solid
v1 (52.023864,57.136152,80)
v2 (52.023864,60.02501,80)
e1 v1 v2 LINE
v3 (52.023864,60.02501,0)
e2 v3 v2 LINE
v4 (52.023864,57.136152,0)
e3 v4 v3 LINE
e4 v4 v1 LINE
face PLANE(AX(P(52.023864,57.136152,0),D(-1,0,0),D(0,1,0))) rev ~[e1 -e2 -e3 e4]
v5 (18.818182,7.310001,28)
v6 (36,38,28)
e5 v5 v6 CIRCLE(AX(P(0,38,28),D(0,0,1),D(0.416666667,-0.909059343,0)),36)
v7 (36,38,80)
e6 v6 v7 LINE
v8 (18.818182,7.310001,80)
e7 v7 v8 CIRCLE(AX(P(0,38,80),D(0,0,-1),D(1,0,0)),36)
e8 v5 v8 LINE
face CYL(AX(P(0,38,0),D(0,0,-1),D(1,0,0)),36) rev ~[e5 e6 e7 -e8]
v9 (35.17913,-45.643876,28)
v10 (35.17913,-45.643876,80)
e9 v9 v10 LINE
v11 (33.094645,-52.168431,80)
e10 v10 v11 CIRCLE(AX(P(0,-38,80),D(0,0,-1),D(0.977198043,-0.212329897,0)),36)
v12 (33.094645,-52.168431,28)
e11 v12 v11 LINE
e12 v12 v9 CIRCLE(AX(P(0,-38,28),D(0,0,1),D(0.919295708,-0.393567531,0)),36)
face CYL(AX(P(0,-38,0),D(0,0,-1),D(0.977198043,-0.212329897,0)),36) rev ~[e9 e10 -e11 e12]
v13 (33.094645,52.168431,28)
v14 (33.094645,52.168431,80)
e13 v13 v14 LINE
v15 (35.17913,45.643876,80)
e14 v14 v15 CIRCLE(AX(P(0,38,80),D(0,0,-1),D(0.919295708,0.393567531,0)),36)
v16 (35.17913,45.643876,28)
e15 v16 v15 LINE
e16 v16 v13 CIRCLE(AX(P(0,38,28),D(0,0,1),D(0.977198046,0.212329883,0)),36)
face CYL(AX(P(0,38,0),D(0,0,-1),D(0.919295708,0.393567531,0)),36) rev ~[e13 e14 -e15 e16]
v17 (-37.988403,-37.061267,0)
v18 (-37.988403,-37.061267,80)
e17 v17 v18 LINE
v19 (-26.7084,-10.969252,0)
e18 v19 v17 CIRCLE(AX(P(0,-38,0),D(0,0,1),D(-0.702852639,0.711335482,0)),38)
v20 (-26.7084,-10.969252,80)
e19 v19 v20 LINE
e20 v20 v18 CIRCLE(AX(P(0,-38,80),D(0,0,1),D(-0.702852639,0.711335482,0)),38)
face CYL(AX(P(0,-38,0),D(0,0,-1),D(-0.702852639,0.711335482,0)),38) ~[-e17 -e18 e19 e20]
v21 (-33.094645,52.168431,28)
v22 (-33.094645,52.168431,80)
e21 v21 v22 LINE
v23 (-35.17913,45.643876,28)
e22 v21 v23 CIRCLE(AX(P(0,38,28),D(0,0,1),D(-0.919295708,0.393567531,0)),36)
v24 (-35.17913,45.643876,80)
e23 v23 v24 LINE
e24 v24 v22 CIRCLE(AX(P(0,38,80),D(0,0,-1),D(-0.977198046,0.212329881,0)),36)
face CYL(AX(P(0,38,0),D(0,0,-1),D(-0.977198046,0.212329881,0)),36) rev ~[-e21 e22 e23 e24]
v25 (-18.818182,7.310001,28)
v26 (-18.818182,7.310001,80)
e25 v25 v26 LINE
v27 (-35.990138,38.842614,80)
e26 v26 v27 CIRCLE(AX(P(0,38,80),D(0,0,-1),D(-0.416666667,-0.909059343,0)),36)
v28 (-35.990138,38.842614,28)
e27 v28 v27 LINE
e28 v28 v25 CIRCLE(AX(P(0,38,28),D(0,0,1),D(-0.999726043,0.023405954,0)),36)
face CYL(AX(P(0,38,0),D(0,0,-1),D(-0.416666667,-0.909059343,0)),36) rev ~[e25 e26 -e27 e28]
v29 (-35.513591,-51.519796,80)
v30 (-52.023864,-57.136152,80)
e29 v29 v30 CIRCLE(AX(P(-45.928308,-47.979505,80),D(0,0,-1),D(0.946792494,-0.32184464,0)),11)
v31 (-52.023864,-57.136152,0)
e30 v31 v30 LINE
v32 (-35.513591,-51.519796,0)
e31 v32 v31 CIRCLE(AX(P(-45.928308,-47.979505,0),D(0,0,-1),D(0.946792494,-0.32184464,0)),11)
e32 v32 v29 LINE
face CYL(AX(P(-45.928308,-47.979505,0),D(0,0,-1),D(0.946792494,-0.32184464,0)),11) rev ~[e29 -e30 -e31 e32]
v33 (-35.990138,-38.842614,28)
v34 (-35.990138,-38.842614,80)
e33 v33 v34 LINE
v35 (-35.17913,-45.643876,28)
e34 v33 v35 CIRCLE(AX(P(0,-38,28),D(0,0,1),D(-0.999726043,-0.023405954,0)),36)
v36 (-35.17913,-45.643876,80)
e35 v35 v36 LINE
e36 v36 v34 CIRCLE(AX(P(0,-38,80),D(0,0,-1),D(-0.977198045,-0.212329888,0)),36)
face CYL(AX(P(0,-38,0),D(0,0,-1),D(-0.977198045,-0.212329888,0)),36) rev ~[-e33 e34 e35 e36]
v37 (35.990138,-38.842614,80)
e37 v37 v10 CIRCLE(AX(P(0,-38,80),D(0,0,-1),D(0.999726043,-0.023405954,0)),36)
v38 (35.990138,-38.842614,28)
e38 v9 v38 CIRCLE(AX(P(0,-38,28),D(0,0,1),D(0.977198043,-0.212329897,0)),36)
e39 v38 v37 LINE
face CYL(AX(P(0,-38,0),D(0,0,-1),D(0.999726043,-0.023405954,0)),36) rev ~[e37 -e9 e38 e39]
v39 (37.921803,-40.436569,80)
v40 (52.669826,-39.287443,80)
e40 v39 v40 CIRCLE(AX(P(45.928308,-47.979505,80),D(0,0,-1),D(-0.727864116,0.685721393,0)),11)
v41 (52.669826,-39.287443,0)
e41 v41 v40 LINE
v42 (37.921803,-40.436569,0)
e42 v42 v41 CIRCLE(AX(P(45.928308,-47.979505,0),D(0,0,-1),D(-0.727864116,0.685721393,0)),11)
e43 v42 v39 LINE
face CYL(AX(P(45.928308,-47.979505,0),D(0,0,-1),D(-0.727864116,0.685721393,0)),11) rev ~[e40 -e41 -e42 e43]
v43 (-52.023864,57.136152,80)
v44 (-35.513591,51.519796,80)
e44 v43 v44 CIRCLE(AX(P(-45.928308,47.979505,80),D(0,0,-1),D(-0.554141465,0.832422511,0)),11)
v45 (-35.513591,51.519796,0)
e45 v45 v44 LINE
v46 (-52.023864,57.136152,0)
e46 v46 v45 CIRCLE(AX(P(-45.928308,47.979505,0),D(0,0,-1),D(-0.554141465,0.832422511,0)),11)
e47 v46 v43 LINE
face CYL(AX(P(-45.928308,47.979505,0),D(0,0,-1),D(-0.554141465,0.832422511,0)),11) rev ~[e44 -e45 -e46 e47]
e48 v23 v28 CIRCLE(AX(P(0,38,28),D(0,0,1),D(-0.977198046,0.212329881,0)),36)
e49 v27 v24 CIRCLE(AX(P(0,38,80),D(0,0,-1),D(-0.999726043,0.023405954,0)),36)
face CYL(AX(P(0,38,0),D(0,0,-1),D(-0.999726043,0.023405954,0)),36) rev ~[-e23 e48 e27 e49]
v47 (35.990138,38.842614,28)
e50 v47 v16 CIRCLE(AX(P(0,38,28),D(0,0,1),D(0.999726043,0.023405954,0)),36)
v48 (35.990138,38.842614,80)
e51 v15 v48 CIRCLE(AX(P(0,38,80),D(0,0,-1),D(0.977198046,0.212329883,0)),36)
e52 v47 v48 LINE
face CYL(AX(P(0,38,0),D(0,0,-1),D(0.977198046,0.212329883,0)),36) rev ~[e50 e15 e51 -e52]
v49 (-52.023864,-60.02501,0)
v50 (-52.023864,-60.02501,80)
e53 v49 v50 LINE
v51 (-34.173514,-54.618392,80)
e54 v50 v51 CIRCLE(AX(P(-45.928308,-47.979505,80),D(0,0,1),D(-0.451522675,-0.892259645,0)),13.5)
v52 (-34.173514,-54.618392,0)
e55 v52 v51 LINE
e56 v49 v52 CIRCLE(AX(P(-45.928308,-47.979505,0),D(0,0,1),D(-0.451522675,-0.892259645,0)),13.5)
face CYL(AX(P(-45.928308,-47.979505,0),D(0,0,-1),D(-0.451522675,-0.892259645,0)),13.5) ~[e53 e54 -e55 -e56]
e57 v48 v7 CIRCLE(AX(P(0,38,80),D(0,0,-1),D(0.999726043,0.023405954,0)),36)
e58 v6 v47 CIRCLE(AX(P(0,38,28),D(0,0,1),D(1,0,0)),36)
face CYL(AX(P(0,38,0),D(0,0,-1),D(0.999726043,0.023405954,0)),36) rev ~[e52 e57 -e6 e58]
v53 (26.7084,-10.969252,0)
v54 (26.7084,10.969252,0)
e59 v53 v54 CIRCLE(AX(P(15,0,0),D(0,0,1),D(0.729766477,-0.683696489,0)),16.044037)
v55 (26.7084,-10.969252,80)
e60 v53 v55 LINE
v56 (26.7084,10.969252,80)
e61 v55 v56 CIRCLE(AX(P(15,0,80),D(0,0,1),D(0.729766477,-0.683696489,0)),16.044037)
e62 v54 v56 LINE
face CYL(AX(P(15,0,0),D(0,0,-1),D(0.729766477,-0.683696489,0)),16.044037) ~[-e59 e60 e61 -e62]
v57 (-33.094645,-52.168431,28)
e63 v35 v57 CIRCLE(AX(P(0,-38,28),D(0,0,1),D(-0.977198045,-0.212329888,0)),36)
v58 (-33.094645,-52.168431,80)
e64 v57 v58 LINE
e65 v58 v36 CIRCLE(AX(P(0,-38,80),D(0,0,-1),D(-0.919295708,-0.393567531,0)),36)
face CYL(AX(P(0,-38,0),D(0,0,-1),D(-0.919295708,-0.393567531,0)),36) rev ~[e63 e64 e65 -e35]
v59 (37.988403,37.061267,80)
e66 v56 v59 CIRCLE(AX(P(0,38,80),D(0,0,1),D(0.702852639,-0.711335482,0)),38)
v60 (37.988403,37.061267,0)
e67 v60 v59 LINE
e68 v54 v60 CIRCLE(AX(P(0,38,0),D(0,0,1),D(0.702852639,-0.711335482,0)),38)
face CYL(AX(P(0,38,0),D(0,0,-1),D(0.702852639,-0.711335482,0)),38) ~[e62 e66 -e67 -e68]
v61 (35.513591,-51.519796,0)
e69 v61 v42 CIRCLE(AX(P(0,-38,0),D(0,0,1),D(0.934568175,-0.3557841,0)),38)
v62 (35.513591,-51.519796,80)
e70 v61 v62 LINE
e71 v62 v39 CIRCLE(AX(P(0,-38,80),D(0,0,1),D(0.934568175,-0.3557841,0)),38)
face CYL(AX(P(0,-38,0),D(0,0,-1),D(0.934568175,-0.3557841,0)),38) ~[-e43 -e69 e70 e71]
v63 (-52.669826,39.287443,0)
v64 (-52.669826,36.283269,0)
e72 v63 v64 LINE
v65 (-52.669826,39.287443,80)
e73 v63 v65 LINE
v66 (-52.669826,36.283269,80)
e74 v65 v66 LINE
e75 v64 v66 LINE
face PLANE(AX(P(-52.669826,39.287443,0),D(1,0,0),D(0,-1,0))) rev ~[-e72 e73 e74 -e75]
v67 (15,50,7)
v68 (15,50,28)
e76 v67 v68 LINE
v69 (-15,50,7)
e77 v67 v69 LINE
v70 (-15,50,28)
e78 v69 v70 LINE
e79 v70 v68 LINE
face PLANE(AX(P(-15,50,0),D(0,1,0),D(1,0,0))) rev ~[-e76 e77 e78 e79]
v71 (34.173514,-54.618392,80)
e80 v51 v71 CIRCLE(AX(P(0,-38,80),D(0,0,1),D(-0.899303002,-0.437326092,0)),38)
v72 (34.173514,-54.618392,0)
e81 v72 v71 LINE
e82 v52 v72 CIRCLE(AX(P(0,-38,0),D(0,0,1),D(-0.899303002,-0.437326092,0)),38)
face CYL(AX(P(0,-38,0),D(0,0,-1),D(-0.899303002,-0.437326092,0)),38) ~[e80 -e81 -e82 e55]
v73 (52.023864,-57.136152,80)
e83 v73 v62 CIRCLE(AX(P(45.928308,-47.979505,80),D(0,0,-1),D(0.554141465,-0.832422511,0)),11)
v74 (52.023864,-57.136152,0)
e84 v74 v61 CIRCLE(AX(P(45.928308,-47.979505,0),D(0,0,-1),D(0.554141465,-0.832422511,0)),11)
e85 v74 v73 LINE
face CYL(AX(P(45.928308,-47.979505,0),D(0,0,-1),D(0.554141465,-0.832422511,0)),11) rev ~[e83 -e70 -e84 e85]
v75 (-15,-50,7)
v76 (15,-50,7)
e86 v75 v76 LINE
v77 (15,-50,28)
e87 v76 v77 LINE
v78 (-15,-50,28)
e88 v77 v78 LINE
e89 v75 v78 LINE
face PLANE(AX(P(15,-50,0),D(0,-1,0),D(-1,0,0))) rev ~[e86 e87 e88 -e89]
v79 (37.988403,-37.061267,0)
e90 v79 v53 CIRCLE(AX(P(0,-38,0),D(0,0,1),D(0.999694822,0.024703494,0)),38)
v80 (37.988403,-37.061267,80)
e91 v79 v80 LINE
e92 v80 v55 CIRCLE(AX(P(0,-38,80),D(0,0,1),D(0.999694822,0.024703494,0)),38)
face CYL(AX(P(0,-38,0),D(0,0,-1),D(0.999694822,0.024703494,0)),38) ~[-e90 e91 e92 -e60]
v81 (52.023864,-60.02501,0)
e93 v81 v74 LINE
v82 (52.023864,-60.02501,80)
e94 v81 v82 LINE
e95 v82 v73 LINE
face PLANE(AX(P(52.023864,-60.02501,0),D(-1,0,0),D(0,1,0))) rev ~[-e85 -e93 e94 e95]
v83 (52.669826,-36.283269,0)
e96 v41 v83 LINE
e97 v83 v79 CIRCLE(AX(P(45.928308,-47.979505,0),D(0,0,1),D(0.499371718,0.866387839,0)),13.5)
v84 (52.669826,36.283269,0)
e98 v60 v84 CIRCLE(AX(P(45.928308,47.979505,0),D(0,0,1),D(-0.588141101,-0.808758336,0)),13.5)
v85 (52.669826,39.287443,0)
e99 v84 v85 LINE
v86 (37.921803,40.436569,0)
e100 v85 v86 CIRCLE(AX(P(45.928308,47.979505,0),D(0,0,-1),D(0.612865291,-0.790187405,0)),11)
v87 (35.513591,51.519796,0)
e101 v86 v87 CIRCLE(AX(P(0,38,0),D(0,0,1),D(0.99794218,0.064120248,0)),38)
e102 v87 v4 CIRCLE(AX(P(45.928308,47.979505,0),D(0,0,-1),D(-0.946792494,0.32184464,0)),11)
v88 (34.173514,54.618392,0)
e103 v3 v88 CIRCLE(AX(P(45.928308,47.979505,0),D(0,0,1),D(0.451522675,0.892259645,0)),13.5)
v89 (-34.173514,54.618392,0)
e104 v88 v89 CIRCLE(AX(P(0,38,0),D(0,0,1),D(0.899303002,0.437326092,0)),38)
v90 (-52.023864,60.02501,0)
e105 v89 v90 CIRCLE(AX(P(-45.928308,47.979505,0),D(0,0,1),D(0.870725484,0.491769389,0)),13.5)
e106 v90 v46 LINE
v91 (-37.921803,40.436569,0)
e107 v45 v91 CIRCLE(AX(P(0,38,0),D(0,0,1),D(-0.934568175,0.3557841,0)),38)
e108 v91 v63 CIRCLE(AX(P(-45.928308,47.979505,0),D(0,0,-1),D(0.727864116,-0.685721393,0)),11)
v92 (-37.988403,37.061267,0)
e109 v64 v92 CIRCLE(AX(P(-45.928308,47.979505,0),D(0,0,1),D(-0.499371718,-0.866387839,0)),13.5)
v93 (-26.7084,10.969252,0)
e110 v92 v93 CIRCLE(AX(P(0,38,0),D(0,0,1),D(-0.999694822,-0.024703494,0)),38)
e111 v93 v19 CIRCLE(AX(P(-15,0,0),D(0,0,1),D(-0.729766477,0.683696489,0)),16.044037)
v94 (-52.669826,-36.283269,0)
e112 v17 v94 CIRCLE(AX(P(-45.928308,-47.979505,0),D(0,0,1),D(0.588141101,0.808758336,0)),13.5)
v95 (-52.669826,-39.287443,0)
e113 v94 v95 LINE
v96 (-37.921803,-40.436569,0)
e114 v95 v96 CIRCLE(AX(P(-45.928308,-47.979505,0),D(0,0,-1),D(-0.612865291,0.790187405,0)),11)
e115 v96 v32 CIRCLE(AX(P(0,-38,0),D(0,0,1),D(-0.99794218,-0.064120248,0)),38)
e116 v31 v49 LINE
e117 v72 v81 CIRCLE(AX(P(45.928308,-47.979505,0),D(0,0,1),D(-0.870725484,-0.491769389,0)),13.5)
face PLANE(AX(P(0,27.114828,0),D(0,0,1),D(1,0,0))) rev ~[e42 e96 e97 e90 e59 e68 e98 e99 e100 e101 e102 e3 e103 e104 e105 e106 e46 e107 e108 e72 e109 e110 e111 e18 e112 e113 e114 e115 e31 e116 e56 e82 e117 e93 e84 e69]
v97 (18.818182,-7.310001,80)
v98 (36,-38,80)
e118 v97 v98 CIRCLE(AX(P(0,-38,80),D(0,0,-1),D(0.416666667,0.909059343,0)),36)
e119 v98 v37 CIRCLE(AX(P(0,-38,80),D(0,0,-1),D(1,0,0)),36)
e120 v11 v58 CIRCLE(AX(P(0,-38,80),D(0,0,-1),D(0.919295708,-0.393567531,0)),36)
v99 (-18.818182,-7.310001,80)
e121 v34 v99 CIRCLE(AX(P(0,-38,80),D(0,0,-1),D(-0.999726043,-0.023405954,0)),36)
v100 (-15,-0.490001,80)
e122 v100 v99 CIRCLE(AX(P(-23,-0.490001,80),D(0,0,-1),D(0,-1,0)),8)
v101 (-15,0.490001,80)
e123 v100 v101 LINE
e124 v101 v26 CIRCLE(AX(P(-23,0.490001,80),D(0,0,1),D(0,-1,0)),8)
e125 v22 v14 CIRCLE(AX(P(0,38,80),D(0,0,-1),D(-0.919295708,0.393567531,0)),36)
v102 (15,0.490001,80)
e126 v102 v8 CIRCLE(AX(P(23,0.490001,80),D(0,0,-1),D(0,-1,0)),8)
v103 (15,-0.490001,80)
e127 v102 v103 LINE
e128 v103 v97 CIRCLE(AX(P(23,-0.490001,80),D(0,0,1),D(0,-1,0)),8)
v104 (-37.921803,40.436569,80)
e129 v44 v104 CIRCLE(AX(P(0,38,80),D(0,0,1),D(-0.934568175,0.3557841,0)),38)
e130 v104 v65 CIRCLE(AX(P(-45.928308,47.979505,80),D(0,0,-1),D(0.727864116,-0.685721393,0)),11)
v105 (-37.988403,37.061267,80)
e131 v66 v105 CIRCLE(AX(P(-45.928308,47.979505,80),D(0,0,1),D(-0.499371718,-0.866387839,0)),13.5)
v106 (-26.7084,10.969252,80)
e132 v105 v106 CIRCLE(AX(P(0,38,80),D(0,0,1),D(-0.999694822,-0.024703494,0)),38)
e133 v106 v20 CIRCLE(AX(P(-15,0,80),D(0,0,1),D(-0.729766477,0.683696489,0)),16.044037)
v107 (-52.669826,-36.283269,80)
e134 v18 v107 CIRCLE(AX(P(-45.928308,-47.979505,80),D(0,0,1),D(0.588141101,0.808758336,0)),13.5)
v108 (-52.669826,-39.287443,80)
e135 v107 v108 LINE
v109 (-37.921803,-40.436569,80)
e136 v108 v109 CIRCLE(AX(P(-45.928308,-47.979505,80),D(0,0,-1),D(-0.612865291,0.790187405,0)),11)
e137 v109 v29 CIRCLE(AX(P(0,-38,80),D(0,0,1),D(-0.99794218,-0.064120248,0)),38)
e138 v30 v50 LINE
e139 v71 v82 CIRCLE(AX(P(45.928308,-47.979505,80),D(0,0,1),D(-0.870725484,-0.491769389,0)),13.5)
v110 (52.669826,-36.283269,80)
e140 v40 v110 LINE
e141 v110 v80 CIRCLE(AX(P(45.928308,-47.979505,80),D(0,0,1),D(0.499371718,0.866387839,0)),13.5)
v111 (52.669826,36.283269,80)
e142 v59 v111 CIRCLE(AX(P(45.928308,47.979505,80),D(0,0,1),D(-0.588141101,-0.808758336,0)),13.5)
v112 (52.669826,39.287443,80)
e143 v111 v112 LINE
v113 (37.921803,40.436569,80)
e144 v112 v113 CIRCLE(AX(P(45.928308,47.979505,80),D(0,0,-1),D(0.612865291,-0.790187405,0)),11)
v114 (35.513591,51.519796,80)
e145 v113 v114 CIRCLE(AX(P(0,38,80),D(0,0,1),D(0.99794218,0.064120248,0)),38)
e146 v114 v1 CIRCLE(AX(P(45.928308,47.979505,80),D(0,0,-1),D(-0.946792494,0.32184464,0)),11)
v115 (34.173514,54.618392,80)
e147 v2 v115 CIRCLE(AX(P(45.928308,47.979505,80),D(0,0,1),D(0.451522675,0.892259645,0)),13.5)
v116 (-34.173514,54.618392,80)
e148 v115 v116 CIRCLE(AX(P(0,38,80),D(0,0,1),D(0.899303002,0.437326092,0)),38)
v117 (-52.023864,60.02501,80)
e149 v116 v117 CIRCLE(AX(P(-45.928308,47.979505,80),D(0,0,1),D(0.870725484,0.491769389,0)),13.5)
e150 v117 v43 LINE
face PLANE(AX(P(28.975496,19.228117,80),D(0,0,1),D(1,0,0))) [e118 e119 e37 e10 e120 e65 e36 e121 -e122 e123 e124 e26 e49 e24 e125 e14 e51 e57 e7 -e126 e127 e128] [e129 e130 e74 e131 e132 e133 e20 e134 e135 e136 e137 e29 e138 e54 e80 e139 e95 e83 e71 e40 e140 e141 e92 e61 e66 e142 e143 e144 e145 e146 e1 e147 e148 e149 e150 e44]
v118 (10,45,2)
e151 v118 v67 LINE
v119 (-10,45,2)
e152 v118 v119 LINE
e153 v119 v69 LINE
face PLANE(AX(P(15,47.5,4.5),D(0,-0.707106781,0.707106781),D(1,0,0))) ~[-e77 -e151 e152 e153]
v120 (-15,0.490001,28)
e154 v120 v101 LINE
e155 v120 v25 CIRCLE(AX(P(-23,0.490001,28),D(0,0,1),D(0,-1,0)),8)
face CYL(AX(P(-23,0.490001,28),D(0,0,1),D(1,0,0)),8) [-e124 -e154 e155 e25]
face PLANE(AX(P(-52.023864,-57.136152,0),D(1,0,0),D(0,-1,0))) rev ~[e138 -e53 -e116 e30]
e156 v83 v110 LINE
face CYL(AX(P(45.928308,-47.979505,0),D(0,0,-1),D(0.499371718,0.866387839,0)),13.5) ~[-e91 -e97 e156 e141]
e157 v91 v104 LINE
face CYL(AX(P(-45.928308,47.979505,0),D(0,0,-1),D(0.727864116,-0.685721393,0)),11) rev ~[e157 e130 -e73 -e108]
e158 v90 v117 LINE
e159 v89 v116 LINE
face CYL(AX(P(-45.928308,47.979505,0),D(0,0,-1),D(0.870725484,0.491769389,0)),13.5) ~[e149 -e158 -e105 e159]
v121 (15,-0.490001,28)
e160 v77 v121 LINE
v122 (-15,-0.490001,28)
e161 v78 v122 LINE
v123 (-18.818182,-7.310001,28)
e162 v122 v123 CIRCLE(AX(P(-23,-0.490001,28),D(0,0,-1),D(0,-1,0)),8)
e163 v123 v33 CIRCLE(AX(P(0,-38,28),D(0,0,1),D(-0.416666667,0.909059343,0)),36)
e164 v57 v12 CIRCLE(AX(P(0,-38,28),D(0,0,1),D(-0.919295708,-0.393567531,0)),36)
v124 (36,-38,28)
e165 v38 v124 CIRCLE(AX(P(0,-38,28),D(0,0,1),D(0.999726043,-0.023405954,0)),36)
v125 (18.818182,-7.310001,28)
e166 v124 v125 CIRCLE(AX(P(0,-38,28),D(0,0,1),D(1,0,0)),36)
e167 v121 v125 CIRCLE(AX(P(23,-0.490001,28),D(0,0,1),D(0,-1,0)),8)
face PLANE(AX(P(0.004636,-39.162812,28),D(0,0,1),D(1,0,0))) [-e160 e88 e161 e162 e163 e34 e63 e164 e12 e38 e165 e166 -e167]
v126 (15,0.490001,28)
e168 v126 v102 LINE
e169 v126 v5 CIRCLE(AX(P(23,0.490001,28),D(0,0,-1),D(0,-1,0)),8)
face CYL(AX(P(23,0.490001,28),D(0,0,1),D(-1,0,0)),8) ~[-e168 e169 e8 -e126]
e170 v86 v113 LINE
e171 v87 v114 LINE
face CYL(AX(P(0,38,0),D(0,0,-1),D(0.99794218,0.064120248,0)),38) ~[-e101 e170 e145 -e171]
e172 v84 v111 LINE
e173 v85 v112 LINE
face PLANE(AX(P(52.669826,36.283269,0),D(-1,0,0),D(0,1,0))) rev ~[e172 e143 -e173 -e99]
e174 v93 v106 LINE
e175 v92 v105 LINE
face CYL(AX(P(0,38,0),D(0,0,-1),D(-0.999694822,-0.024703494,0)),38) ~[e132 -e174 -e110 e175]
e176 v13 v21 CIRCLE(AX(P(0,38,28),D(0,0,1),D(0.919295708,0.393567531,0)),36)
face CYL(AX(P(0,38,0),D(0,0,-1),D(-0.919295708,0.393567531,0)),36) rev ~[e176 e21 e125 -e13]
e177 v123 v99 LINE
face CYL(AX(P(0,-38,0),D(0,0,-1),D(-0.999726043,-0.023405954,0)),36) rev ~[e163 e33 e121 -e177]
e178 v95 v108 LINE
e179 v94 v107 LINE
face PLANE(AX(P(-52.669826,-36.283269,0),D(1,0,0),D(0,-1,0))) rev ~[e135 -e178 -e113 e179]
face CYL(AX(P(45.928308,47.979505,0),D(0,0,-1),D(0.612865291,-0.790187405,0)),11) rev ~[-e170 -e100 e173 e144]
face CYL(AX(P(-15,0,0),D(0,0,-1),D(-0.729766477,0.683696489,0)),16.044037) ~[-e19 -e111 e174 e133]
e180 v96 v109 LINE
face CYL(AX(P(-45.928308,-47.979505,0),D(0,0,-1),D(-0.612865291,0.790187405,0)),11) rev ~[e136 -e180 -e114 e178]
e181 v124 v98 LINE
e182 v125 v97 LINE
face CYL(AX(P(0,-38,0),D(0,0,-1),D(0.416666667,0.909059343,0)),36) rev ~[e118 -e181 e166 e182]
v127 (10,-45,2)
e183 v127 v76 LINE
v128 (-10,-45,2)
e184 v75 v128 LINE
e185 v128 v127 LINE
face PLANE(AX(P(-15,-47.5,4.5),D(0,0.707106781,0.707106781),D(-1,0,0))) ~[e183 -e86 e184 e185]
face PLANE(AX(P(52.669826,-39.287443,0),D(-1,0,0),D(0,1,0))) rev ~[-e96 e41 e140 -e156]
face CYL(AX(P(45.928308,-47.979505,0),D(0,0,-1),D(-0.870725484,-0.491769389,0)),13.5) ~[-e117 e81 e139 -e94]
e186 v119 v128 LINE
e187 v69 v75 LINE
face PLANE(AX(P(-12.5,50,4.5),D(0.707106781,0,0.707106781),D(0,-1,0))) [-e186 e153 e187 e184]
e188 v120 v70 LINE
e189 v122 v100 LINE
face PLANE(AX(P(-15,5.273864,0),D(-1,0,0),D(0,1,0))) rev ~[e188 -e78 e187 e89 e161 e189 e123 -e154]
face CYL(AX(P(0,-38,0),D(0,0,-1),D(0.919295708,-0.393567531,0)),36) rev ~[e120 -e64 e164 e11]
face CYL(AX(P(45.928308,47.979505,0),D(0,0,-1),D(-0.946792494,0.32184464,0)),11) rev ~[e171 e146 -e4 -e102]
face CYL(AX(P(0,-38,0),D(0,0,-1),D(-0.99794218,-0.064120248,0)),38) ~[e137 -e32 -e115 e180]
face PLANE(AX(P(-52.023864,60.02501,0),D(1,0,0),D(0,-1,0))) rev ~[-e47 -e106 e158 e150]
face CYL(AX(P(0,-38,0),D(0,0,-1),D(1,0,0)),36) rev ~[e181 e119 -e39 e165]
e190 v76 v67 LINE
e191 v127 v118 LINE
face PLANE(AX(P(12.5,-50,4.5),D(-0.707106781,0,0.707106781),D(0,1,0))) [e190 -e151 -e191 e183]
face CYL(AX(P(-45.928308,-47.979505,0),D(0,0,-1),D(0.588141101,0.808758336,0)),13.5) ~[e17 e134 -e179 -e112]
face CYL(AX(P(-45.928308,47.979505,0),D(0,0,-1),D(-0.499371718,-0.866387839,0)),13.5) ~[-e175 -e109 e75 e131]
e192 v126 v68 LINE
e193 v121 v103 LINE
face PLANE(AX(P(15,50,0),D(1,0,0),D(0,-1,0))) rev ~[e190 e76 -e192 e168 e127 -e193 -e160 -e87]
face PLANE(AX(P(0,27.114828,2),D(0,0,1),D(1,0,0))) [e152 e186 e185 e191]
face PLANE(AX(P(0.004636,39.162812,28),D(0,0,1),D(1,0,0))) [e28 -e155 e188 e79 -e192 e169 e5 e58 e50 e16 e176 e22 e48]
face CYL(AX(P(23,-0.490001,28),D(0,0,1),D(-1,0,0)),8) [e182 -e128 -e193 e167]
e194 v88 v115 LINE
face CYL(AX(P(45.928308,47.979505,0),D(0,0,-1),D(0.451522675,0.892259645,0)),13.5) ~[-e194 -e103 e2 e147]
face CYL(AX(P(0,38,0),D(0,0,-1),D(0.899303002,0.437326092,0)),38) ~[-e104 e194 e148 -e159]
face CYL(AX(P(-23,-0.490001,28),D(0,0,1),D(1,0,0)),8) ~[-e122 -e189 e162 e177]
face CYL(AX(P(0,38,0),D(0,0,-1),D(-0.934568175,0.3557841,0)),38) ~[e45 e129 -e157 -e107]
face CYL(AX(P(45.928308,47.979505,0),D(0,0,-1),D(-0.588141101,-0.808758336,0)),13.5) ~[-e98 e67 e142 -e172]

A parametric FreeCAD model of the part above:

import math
import FreeCAD as App
import Part
import Sketcher


def edges_at(feature, points):
    """Names of the edges that pass closest to the given points."""
    edges = feature.Shape.Edges
    near = lambda p: min(range(len(edges)), key=lambda i: edges[i].distToShape(Part.Vertex(*p))[0])
    return sorted({f"Edge{near(p) + 1}" for p in points})


def add_polygon(sketch, points):
    """Adds a closed chain of lines whose ends are joined by coincident constraints."""
    first, n = sketch.GeometryCount, len(points)
    for a, b in zip(points, points[1:] + points[:1]):
        sketch.addGeometry(Part.LineSegment(App.Vector(*a, 0), App.Vector(*b, 0)), False)
    for i in range(n):
        sketch.addConstraint(Sketcher.Constraint("Coincident", first + i, 2, first + (i + 1) % n, 1))

doc = App.newDocument("Part")
body = doc.addObject("PartDesign::Body", "Body")

# Sketch on XY plane
sketch1 = body.newObject("Sketcher::SketchObject", "Sketch")
sketch1.AttachmentSupport = (doc.getObject("XY_Plane"), [""])
sketch1.MapMode = "FlatFace"
sketch1.addGeometry([
    Part.ArcOfCircle(Part.Circle(App.Vector(45.928308, -47.979505, 0), App.Vector(0, 0, 1), 13.5), math.radians(-150.543055), math.radians(-63.158581)),  # 0
    Part.LineSegment(App.Vector(52.023864, -60.02501, 0), App.Vector(52.023864, -57.136152, 0)),  # 1
    Part.ArcOfCircle(Part.Circle(App.Vector(45.928308, -47.979505, 0), App.Vector(0, 0, 1), 11), math.radians(-161.225482), math.radians(-56.348399)),  # 2
    Part.ArcOfCircle(Part.Circle(App.Vector(0, -38, 0), App.Vector(0, 0, 1), 38), math.radians(-20.841508), math.radians(-3.676342)),  # 3
    Part.ArcOfCircle(Part.Circle(App.Vector(45.928308, -47.979505, 0), App.Vector(0, 0, 1), 11), math.radians(52.203028), math.radians(136.707633)),  # 4
    Part.LineSegment(App.Vector(52.669826, -39.287443, 0), App.Vector(52.669826, -36.283269, 0)),  # 5
    Part.ArcOfCircle(Part.Circle(App.Vector(45.928308, -47.979505, 0), App.Vector(0, 0, 1), 13.5), math.radians(60.041558), math.radians(126.025206)),  # 6
    Part.ArcOfCircle(Part.Circle(App.Vector(0, -38, 0), App.Vector(0, 0, 1), 38), math.radians(1.41555), math.radians(45.343678)),  # 7
    Part.ArcOfCircle(Part.Circle(App.Vector(15, 0, 0), App.Vector(0, 0, 1), 16.044037), math.radians(-43.133179), math.radians(43.133179)),  # 8
    Part.ArcOfCircle(Part.Circle(App.Vector(0, 38, 0), App.Vector(0, 0, 1), 38), math.radians(-45.343678), math.radians(-1.41555)),  # 9
    Part.ArcOfCircle(Part.Circle(App.Vector(45.928308, 47.979505, 0), App.Vector(0, 0, 1), 13.5), math.radians(-126.025206), math.radians(-60.041558)),  # 10
    Part.LineSegment(App.Vector(52.669826, 36.283269, 0), App.Vector(52.669826, 39.287443, 0)),  # 11
    Part.ArcOfCircle(Part.Circle(App.Vector(45.928308, 47.979505, 0), App.Vector(0, 0, 1), 11), math.radians(-136.707633), math.radians(-52.203028)),  # 12
    Part.ArcOfCircle(Part.Circle(App.Vector(0, 38, 0), App.Vector(0, 0, 1), 38), math.radians(3.676342), math.radians(20.841508)),  # 13
    Part.ArcOfCircle(Part.Circle(App.Vector(45.928308, 47.979505, 0), App.Vector(0, 0, 1), 11), math.radians(56.348399), math.radians(161.225482)),  # 14
    Part.LineSegment(App.Vector(52.023864, 57.136152, 0), App.Vector(52.023864, 60.02501, 0)),  # 15
    Part.ArcOfCircle(Part.Circle(App.Vector(45.928308, 47.979505, 0), App.Vector(0, 0, 1), 13.5), math.radians(63.158581), math.radians(150.543055)),  # 16
    Part.ArcOfCircle(Part.Circle(App.Vector(0, 38, 0), App.Vector(0, 0, 1), 38), math.radians(25.933399), math.radians(154.066601)),  # 17
    Part.ArcOfCircle(Part.Circle(App.Vector(-45.928308, 47.979505, 0), App.Vector(0, 0, 1), 13.5), math.radians(29.456945), math.radians(116.841419)),  # 18
    Part.LineSegment(App.Vector(-52.023864, 60.02501, 0), App.Vector(-52.023864, 57.136152, 0)),  # 19
    Part.ArcOfCircle(Part.Circle(App.Vector(-45.928308, 47.979505, 0), App.Vector(0, 0, 1), 11), math.radians(18.774518), math.radians(123.651601)),  # 20
    Part.ArcOfCircle(Part.Circle(App.Vector(0, 38, 0), App.Vector(0, 0, 1), 38), math.radians(159.158492), math.radians(176.323658)),  # 21
    Part.ArcOfCircle(Part.Circle(App.Vector(-45.928308, 47.979505, 0), App.Vector(0, 0, 1), 11), math.radians(-127.796972), math.radians(-43.292367)),  # 22
    Part.LineSegment(App.Vector(-52.669826, 39.287443, 0), App.Vector(-52.669826, 36.283269, 0)),  # 23
    Part.ArcOfCircle(Part.Circle(App.Vector(-45.928308, 47.979505, 0), App.Vector(0, 0, 1), 13.5), math.radians(-119.958442), math.radians(-53.974794)),  # 24
    Part.ArcOfCircle(Part.Circle(App.Vector(0, 38, 0), App.Vector(0, 0, 1), 38), math.radians(-178.58445), math.radians(-134.656322)),  # 25
    Part.ArcOfCircle(Part.Circle(App.Vector(-15, 0, 0), App.Vector(0, 0, 1), 16.044037), math.radians(136.866821), math.radians(223.133179)),  # 26
    Part.ArcOfCircle(Part.Circle(App.Vector(0, -38, 0), App.Vector(0, 0, 1), 38), math.radians(134.656322), math.radians(178.58445)),  # 27
    Part.ArcOfCircle(Part.Circle(App.Vector(-45.928308, -47.979505, 0), App.Vector(0, 0, 1), 13.5), math.radians(53.974794), math.radians(119.958442)),  # 28
    Part.LineSegment(App.Vector(-52.669826, -36.283269, 0), App.Vector(-52.669826, -39.287443, 0)),  # 29
    Part.ArcOfCircle(Part.Circle(App.Vector(-45.928308, -47.979505, 0), App.Vector(0, 0, 1), 11), math.radians(43.292367), math.radians(127.796972)),  # 30
    Part.ArcOfCircle(Part.Circle(App.Vector(0, -38, 0), App.Vector(0, 0, 1), 38), math.radians(-176.323658), math.radians(-159.158492)),  # 31
    Part.ArcOfCircle(Part.Circle(App.Vector(-45.928308, -47.979505, 0), App.Vector(0, 0, 1), 11), math.radians(-123.651601), math.radians(-18.774518)),  # 32
    Part.LineSegment(App.Vector(-52.023864, -57.136152, 0), App.Vector(-52.023864, -60.02501, 0)),  # 33
    Part.ArcOfCircle(Part.Circle(App.Vector(-45.928308, -47.979505, 0), App.Vector(0, 0, 1), 13.5), math.radians(-116.841419), math.radians(-29.456945)),  # 34
    Part.ArcOfCircle(Part.Circle(App.Vector(0, -38, 0), App.Vector(0, 0, 1), 38), math.radians(-154.066601), math.radians(-25.933399)),  # 35
    Part.ArcOfCircle(Part.Circle(App.Vector(0, 38, 0), App.Vector(0, 0, 1), 36), math.radians(0), math.radians(1.341185)),  # 36
    Part.ArcOfCircle(Part.Circle(App.Vector(0, 38, 0), App.Vector(0, 0, 1), 36), math.radians(-65.375682), math.radians(0)),  # 37
    Part.LineSegment(App.Vector(15, 5.273864, 0), App.Vector(15, -5.273864, 0)),  # 38
    Part.ArcOfCircle(Part.Circle(App.Vector(0, -38, 0), App.Vector(0, 0, 1), 36), math.radians(0), math.radians(65.375682)),  # 39
    Part.ArcOfCircle(Part.Circle(App.Vector(0, -38, 0), App.Vector(0, 0, 1), 36), math.radians(-1.341185), math.radians(0)),  # 40
    Part.ArcOfCircle(Part.Circle(App.Vector(0, -38, 0), App.Vector(0, 0, 1), 36), math.radians(-12.258925), math.radians(-1.341185)),  # 41
    Part.ArcOfCircle(Part.Circle(App.Vector(0, -38, 0), App.Vector(0, 0, 1), 36), math.radians(-23.176665), math.radians(-12.258925)),  # 42
    Part.ArcOfCircle(Part.Circle(App.Vector(0, -38, 0), App.Vector(0, 0, 1), 36), math.radians(-156.823335), math.radians(-23.176665)),  # 43
    Part.ArcOfCircle(Part.Circle(App.Vector(0, -38, 0), App.Vector(0, 0, 1), 36), math.radians(-167.741075), math.radians(-156.823335)),  # 44
    Part.ArcOfCircle(Part.Circle(App.Vector(0, -38, 0), App.Vector(0, 0, 1), 36), math.radians(-178.658815), math.radians(-167.741075)),  # 45
    Part.ArcOfCircle(Part.Circle(App.Vector(0, -38, 0), App.Vector(0, 0, 1), 36), math.radians(114.624318), math.radians(181.341185)),  # 46
    Part.LineSegment(App.Vector(-15, -5.273864, 0), App.Vector(-15, 5.273864, 0)),  # 47
    Part.ArcOfCircle(Part.Circle(App.Vector(0, 38, 0), App.Vector(0, 0, 1), 36), math.radians(178.658815), math.radians(245.375682)),  # 48
    Part.ArcOfCircle(Part.Circle(App.Vector(0, 38, 0), App.Vector(0, 0, 1), 36), math.radians(167.741076), math.radians(178.658815)),  # 49
    Part.ArcOfCircle(Part.Circle(App.Vector(0, 38, 0), App.Vector(0, 0, 1), 36), math.radians(156.823335), math.radians(167.741076)),  # 50
    Part.ArcOfCircle(Part.Circle(App.Vector(0, 38, 0), App.Vector(0, 0, 1), 36), math.radians(23.176665), math.radians(156.823335)),  # 51
    Part.ArcOfCircle(Part.Circle(App.Vector(0, 38, 0), App.Vector(0, 0, 1), 36), math.radians(12.258924), math.radians(23.176665)),  # 52
    Part.ArcOfCircle(Part.Circle(App.Vector(0, 38, 0), App.Vector(0, 0, 1), 36), math.radians(1.341185), math.radians(12.258924)),  # 53
], False)
sketch1.addConstraint([
    Sketcher.Constraint("Coincident", 0, 2, 1, 1),
    Sketcher.Constraint("Coincident", 1, 2, 2, 2),
    Sketcher.Constraint("Coincident", 2, 1, 3, 1),
    Sketcher.Constraint("Coincident", 3, 2, 4, 2),
    Sketcher.Constraint("Coincident", 4, 1, 5, 1),
    Sketcher.Constraint("Coincident", 5, 2, 6, 1),
    Sketcher.Constraint("Coincident", 6, 2, 7, 1),
    Sketcher.Constraint("Coincident", 7, 2, 8, 1),
    Sketcher.Constraint("Coincident", 8, 2, 9, 1),
    Sketcher.Constraint("Coincident", 9, 2, 10, 1),
    Sketcher.Constraint("Coincident", 10, 2, 11, 1),
    Sketcher.Constraint("Coincident", 11, 2, 12, 2),
    Sketcher.Constraint("Coincident", 12, 1, 13, 1),
    Sketcher.Constraint("Coincident", 13, 2, 14, 2),
    Sketcher.Constraint("Coincident", 14, 1, 15, 1),
    Sketcher.Constraint("Coincident", 15, 2, 16, 1),
    Sketcher.Constraint("Coincident", 16, 2, 17, 1),
    Sketcher.Constraint("Coincident", 17, 2, 18, 1),
    Sketcher.Constraint("Coincident", 18, 2, 19, 1),
    Sketcher.Constraint("Coincident", 19, 2, 20, 2),
    Sketcher.Constraint("Coincident", 20, 1, 21, 1),
    Sketcher.Constraint("Coincident", 21, 2, 22, 2),
    Sketcher.Constraint("Coincident", 22, 1, 23, 1),
    Sketcher.Constraint("Coincident", 23, 2, 24, 1),
    Sketcher.Constraint("Coincident", 24, 2, 25, 1),
    Sketcher.Constraint("Coincident", 25, 2, 26, 1),
    Sketcher.Constraint("Coincident", 26, 2, 27, 1),
    Sketcher.Constraint("Coincident", 27, 2, 28, 1),
    Sketcher.Constraint("Coincident", 28, 2, 29, 1),
    Sketcher.Constraint("Coincident", 29, 2, 30, 2),
    Sketcher.Constraint("Coincident", 30, 1, 31, 1),
    Sketcher.Constraint("Coincident", 31, 2, 32, 2),
    Sketcher.Constraint("Coincident", 32, 1, 33, 1),
    Sketcher.Constraint("Coincident", 33, 2, 34, 1),
    Sketcher.Constraint("Coincident", 34, 2, 35, 1),
    Sketcher.Constraint("Coincident", 35, 2, 0, 1),
    Sketcher.Constraint("Tangent", 36, 1, 37, 2),
    Sketcher.Constraint("Coincident", 37, 1, 38, 1),
    Sketcher.Constraint("Coincident", 38, 2, 39, 2),
    Sketcher.Constraint("Tangent", 39, 1, 40, 2),
    Sketcher.Constraint("Tangent", 40, 1, 41, 2),
    Sketcher.Constraint("Tangent", 41, 1, 42, 2),
    Sketcher.Constraint("Tangent", 42, 1, 43, 2),
    Sketcher.Constraint("Tangent", 43, 1, 44, 2),
    Sketcher.Constraint("Tangent", 44, 1, 45, 2),
    Sketcher.Constraint("Tangent", 45, 1, 46, 2),
    Sketcher.Constraint("Coincident", 46, 1, 47, 1),
    Sketcher.Constraint("Coincident", 47, 2, 48, 2),
    Sketcher.Constraint("Tangent", 48, 1, 49, 2),
    Sketcher.Constraint("Tangent", 49, 1, 50, 2),
    Sketcher.Constraint("Tangent", 50, 1, 51, 2),
    Sketcher.Constraint("Tangent", 51, 1, 52, 2),
    Sketcher.Constraint("Tangent", 52, 1, 53, 2),
    Sketcher.Constraint("Tangent", 53, 1, 36, 2),
    Sketcher.Constraint("Vertical", 1),
    Sketcher.Constraint("Vertical", 5),
    Sketcher.Constraint("Vertical", 11),
    Sketcher.Constraint("Vertical", 15),
    Sketcher.Constraint("Vertical", 19),
    Sketcher.Constraint("Vertical", 23),
    Sketcher.Constraint("Vertical", 29),
    Sketcher.Constraint("Vertical", 33),
    Sketcher.Constraint("Vertical", 38),
    Sketcher.Constraint("Vertical", 47),
    Sketcher.Constraint("Coincident", 2, 3, 0, 3),
    Sketcher.Constraint("Coincident", 4, 3, 0, 3),
    Sketcher.Constraint("Coincident", 6, 3, 0, 3),
    Sketcher.Constraint("Coincident", 7, 3, 3, 3),
    Sketcher.Constraint("Coincident", 12, 3, 10, 3),
    Sketcher.Constraint("Coincident", 13, 3, 9, 3),
    Sketcher.Constraint("Coincident", 14, 3, 10, 3),
    Sketcher.Constraint("Coincident", 16, 3, 10, 3),
    Sketcher.Constraint("Coincident", 17, 3, 9, 3),
    Sketcher.Constraint("Coincident", 20, 3, 18, 3),
    Sketcher.Constraint("Coincident", 21, 3, 9, 3),
    Sketcher.Constraint("Coincident", 22, 3, 18, 3),
    Sketcher.Constraint("Coincident", 24, 3, 18, 3),
    Sketcher.Constraint("Coincident", 25, 3, 9, 3),
    Sketcher.Constraint("Coincident", 27, 3, 3, 3),
    Sketcher.Constraint("Coincident", 30, 3, 28, 3),
    Sketcher.Constraint("Coincident", 31, 3, 3, 3),
    Sketcher.Constraint("Coincident", 32, 3, 28, 3),
    Sketcher.Constraint("Coincident", 34, 3, 28, 3),
    Sketcher.Constraint("Coincident", 35, 3, 3, 3),
    Sketcher.Constraint("Coincident", 36, 3, 9, 3),
    Sketcher.Constraint("Coincident", 39, 3, 3, 3),
    Sketcher.Constraint("Coincident", 41, 3, 3, 3),
    Sketcher.Constraint("Coincident", 43, 3, 3, 3),
    Sketcher.Constraint("Coincident", 45, 3, 3, 3),
    Sketcher.Constraint("Coincident", 48, 3, 9, 3),
    Sketcher.Constraint("Coincident", 50, 3, 9, 3),
    Sketcher.Constraint("Coincident", 52, 3, 9, 3),
    Sketcher.Constraint("Equal", 2, 4),
    Sketcher.Constraint("Equal", 0, 6),
    Sketcher.Constraint("Equal", 3, 7),
    Sketcher.Constraint("Equal", 7, 9),
    Sketcher.Constraint("Equal", 6, 10),
    Sketcher.Constraint("Equal", 4, 12),
    Sketcher.Constraint("Equal", 9, 13),
    Sketcher.Constraint("Equal", 12, 14),
    Sketcher.Constraint("Equal", 10, 16),
    Sketcher.Constraint("Equal", 13, 17),
    Sketcher.Constraint("Equal", 16, 18),
    Sketcher.Constraint("Equal", 14, 20),
    Sketcher.Constraint("Equal", 17, 21),
    Sketcher.Constraint("Equal", 20, 22),
    Sketcher.Constraint("Equal", 18, 24),
    Sketcher.Constraint("Equal", 21, 25),
    Sketcher.Constraint("Equal", 8, 26),
    Sketcher.Constraint("Equal", 25, 27),
    Sketcher.Constraint("Equal", 24, 28),
    Sketcher.Constraint("Equal", 22, 30),
    Sketcher.Constraint("Equal", 27, 31),
    Sketcher.Constraint("Equal", 30, 32),
    Sketcher.Constraint("Equal", 28, 34),
    Sketcher.Constraint("Equal", 31, 35),
    Sketcher.Constraint("Equal", 36, 37),
    Sketcher.Constraint("Equal", 37, 39),
    Sketcher.Constraint("Equal", 45, 46),
    Sketcher.Constraint("Symmetric", 3, 3, 9, 3, -1, 1),
    Sketcher.Constraint("Symmetric", 0, 3, 18, 3, -1, 1),
    Sketcher.Constraint("Symmetric", 8, 3, 26, 3, -1, 1),
    Sketcher.Constraint("Symmetric", 10, 3, 28, 3, -1, 1),
    Sketcher.Constraint("Symmetric", 10, 3, 18, 3, -2),
    Sketcher.Constraint("Symmetric", 8, 2, 25, 2, -2),
    Sketcher.Constraint("Horizontal", 15, 2, 18, 2),
    Sketcher.Constraint("Horizontal", 11, 2, 22, 1),
    Sketcher.Constraint("Horizontal", 5, 2, 28, 2),
    Sketcher.Constraint("Horizontal", 1, 2, 32, 1),
    Sketcher.Constraint("Horizontal", 53, 3, 36, 1),
    Sketcher.Constraint("Horizontal", 46, 3, 39, 1),
    Sketcher.Constraint("Horizontal", 42, 1, 43, 1),
    Sketcher.Constraint("Horizontal", 41, 1, 44, 1),
    Sketcher.Constraint("Horizontal", 40, 1, 45, 1),
    Sketcher.Constraint("Horizontal", 38, 2, 46, 1),
    Sketcher.Constraint("Horizontal", 50, 1, 51, 1),
    Sketcher.Constraint("Horizontal", 49, 1, 52, 1),
    Sketcher.Constraint("Horizontal", 48, 1, 53, 1),
    Sketcher.Constraint("Vertical", 5, 2, 10, 2),
    Sketcher.Constraint("Vertical", 1, 2, 14, 1),
    Sketcher.Constraint("Vertical", 8, 3, 37, 1),
    Sketcher.Constraint("Vertical", 45, 1, 48, 1),
    Sketcher.Constraint("Vertical", 44, 1, 49, 1),
    Sketcher.Constraint("Vertical", 43, 1, 50, 1),
    Sketcher.Constraint("Radius", 2, 11.0),
    Sketcher.Constraint("Radius", 3, 38.0),
    Sketcher.Constraint("Radius", 36, 36.0),
    Sketcher.Constraint("Radius", 0, 13.5),
    Sketcher.Constraint("DistanceY", 3, 3, -1, 1, 38.0),
    Sketcher.Constraint("DistanceX", -1, 1, 8, 3, 15.0),
    Sketcher.Constraint("Radius", 8, 16.044037),
    Sketcher.Constraint("DistanceY", 1, 1, 1, 2, 2.888858),
    Sketcher.Constraint("DistanceY", 5, 1, 5, 2, 3.004174),
    Sketcher.Constraint("DistanceX", -1, 1, 0, 3, 45.928308),
    Sketcher.Constraint("DistanceY", 0, 2, -1, 1, 60.02501),
    Sketcher.Constraint("DistanceX", -1, 1, 41, 1, 35.17913),
    Sketcher.Constraint("DistanceY", 42, 1, -1, 1, 52.168431),
    Sketcher.Constraint("DistanceX", -1, 1, 40, 1, 35.990138),
])
pad1 = body.newObject("PartDesign::Pad", "Pad")
pad1.Profile = sketch1
pad1.Length = 80

# Sketch on XY plane
sketch2 = body.newObject("Sketcher::SketchObject", "Sketch001")
sketch2.AttachmentSupport = (doc.getObject("XY_Plane"), [""])
sketch2.MapMode = "FlatFace"
sketch2.addGeometry([
    Part.ArcOfCircle(Part.Circle(App.Vector(0, 38, 0), App.Vector(0, 0, 1), 36), math.radians(-65.375682), math.radians(0)),  # 0
    Part.ArcOfCircle(Part.Circle(App.Vector(0, 38, 0), App.Vector(0, 0, 1), 36), math.radians(0), math.radians(1.341185)),  # 1
    Part.ArcOfCircle(Part.Circle(App.Vector(0, 38, 0), App.Vector(0, 0, 1), 36), math.radians(1.341185), math.radians(12.258924)),  # 2
    Part.ArcOfCircle(Part.Circle(App.Vector(0, 38, 0), App.Vector(0, 0, 1), 36), math.radians(12.258924), math.radians(23.176665)),  # 3
    Part.ArcOfCircle(Part.Circle(App.Vector(0, 38, 0), App.Vector(0, 0, 1), 36), math.radians(23.176665), math.radians(156.823335)),  # 4
    Part.ArcOfCircle(Part.Circle(App.Vector(0, 38, 0), App.Vector(0, 0, 1), 36), math.radians(156.823335), math.radians(167.741076)),  # 5
    Part.ArcOfCircle(Part.Circle(App.Vector(0, 38, 0), App.Vector(0, 0, 1), 36), math.radians(167.741076), math.radians(178.658815)),  # 6
    Part.ArcOfCircle(Part.Circle(App.Vector(0, 38, 0), App.Vector(0, 0, 1), 36), math.radians(178.658815), math.radians(245.375682)),  # 7
    Part.LineSegment(App.Vector(-15, 5.273864, 0), App.Vector(-15, 50, 0)),  # 8
    Part.LineSegment(App.Vector(-15, 50, 0), App.Vector(15, 50, 0)),  # 9
    Part.LineSegment(App.Vector(15, 50, 0), App.Vector(15, 5.273864, 0)),  # 10
    Part.ArcOfCircle(Part.Circle(App.Vector(0, -38, 0), App.Vector(0, 0, 1), 36), math.radians(0), math.radians(65.375682)),  # 11
    Part.LineSegment(App.Vector(15, -5.273864, 0), App.Vector(15, -50, 0)),  # 12
    Part.LineSegment(App.Vector(15, -50, 0), App.Vector(-15, -50, 0)),  # 13
    Part.LineSegment(App.Vector(-15, -50, 0), App.Vector(-15, -5.273864, 0)),  # 14
    Part.ArcOfCircle(Part.Circle(App.Vector(0, -38, 0), App.Vector(0, 0, 1), 36), math.radians(114.624318), math.radians(181.341185)),  # 15
    Part.ArcOfCircle(Part.Circle(App.Vector(0, -38, 0), App.Vector(0, 0, 1), 36), math.radians(-178.658815), math.radians(-167.741075)),  # 16
    Part.ArcOfCircle(Part.Circle(App.Vector(0, -38, 0), App.Vector(0, 0, 1), 36), math.radians(-167.741075), math.radians(-156.823335)),  # 17
    Part.ArcOfCircle(Part.Circle(App.Vector(0, -38, 0), App.Vector(0, 0, 1), 36), math.radians(-156.823335), math.radians(-23.176665)),  # 18
    Part.ArcOfCircle(Part.Circle(App.Vector(0, -38, 0), App.Vector(0, 0, 1), 36), math.radians(-23.176665), math.radians(-12.258925)),  # 19
    Part.ArcOfCircle(Part.Circle(App.Vector(0, -38, 0), App.Vector(0, 0, 1), 36), math.radians(-12.258925), math.radians(-1.341185)),  # 20
    Part.ArcOfCircle(Part.Circle(App.Vector(0, -38, 0), App.Vector(0, 0, 1), 36), math.radians(-1.341185), math.radians(0)),  # 21
], False)
sketch2.addConstraint([
    Sketcher.Constraint("Tangent", 0, 2, 1, 1),
    Sketcher.Constraint("Tangent", 1, 2, 2, 1),
    Sketcher.Constraint("Tangent", 2, 2, 3, 1),
    Sketcher.Constraint("Tangent", 3, 2, 4, 1),
    Sketcher.Constraint("Tangent", 4, 2, 5, 1),
    Sketcher.Constraint("Tangent", 5, 2, 6, 1),
    Sketcher.Constraint("Tangent", 6, 2, 7, 1),
    Sketcher.Constraint("Coincident", 7, 2, 8, 1),
    Sketcher.Constraint("Coincident", 8, 2, 9, 1),
    Sketcher.Constraint("Coincident", 9, 2, 10, 1),
    Sketcher.Constraint("Coincident", 10, 2, 0, 1),
    Sketcher.Constraint("Coincident", 11, 2, 12, 1),
    Sketcher.Constraint("Coincident", 12, 2, 13, 1),
    Sketcher.Constraint("Coincident", 13, 2, 14, 1),
    Sketcher.Constraint("Coincident", 14, 2, 15, 1),
    Sketcher.Constraint("Tangent", 15, 2, 16, 1),
    Sketcher.Constraint("Tangent", 16, 2, 17, 1),
    Sketcher.Constraint("Tangent", 17, 2, 18, 1),
    Sketcher.Constraint("Tangent", 18, 2, 19, 1),
    Sketcher.Constraint("Tangent", 19, 2, 20, 1),
    Sketcher.Constraint("Tangent", 20, 2, 21, 1),
    Sketcher.Constraint("Tangent", 21, 2, 11, 1),
    Sketcher.Constraint("Vertical", 8),
    Sketcher.Constraint("Horizontal", 9),
    Sketcher.Constraint("Vertical", 10),
    Sketcher.Constraint("Vertical", 12),
    Sketcher.Constraint("Horizontal", 13),
    Sketcher.Constraint("Vertical", 14),
    Sketcher.Constraint("Coincident", 2, 3, 0, 3),
    Sketcher.Constraint("Coincident", 4, 3, 0, 3),
    Sketcher.Constraint("Coincident", 6, 3, 0, 3),
    Sketcher.Constraint("Coincident", 15, 3, 11, 3),
    Sketcher.Constraint("Coincident", 17, 3, 11, 3),
    Sketcher.Constraint("Coincident", 19, 3, 11, 3),
    Sketcher.Constraint("Equal", 6, 7),
    Sketcher.Constraint("Equal", 7, 11),
    Sketcher.Constraint("Equal", 19, 20),
    Sketcher.Constraint("Symmetric", 0, 3, 11, 3, -1, 1),
    Sketcher.Constraint("Symmetric", 8, 2, 12, 2, -1, 1),
    Sketcher.Constraint("Symmetric", 3, 2, 4, 2, -2),
    Sketcher.Constraint("Horizontal", 7, 3, 0, 2),
    Sketcher.Constraint("Horizontal", 2, 2, 5, 2),
    Sketcher.Constraint("Horizontal", 1, 2, 6, 2),
    Sketcher.Constraint("Horizontal", 7, 2, 10, 2),
    Sketcher.Constraint("Horizontal", 11, 2, 14, 2),
    Sketcher.Constraint("Horizontal", 17, 2, 18, 2),
    Sketcher.Constraint("Horizontal", 16, 2, 19, 2),
    Sketcher.Constraint("Horizontal", 15, 2, 20, 2),
    Sketcher.Constraint("Horizontal", 20, 3, 21, 2),
    Sketcher.Constraint("Vertical", 6, 2, 15, 2),
    Sketcher.Constraint("Vertical", 5, 2, 16, 2),
    Sketcher.Constraint("Vertical", 4, 2, 17, 2),
    Sketcher.Constraint("Radius", 0, 36.0),
    Sketcher.Constraint("DistanceX", 9, 1, 9, 2, 30.0),
    Sketcher.Constraint("DistanceY", -1, 1, 0, 3, 38.0),
    Sketcher.Constraint("DistanceY", -1, 1, 8, 2, 50.0),
    Sketcher.Constraint("DistanceX", -1, 1, 2, 2, 35.17913),
    Sketcher.Constraint("DistanceY", -1, 1, 3, 2, 52.168431),
    Sketcher.Constraint("DistanceY", 1, 2, 2, 2, 6.801261),
])
pad2 = body.newObject("PartDesign::Pad", "Pad001")
pad2.Profile = sketch2
pad2.Length = 28

# Sketch on XY plane
sketch3 = body.newObject("Sketcher::SketchObject", "Sketch002")
sketch3.AttachmentSupport = (doc.getObject("XY_Plane"), [""])
sketch3.MapMode = "FlatFace"
add_polygon(sketch3, [(15, 50), (-15, 50), (-15, -50), (15, -50)])  # lines 0-3
sketch3.addConstraint([
    Sketcher.Constraint("Horizontal", 0),
    Sketcher.Constraint("Vertical", 1),
    Sketcher.Constraint("Horizontal", 2),
    Sketcher.Constraint("Vertical", 3),
    Sketcher.Constraint("Symmetric", 0, 2, 2, 2, -1, 1),
    Sketcher.Constraint("DistanceX", 0, 2, 0, 1, 30.0),
    Sketcher.Constraint("DistanceY", 1, 2, 1, 1, 100.0),
])
pad3 = body.newObject("PartDesign::Pad", "Pad002")
pad3.Profile = sketch3
pad3.Length = 2
doc.recompute()

chamfer = body.newObject("PartDesign::Chamfer", "Chamfer")
chamfer.Base = (pad3, edges_at(pad3, [
    (0, 50, 2),
    (-15, 0, 2),
    (0, -50, 2),
    (15, 0, 2),
]))
chamfer.Size = 5
doc.recompute()

fillet = body.newObject("PartDesign::Fillet", "Fillet")
fillet.Base = (chamfer, edges_at(chamfer, [
    (-15, -5.274, 54),
    (-15, 5.274, 54),
    (15, -5.274, 54),
    (15, 5.274, 54),
]))
fillet.Radius = 8

doc.recompute()
